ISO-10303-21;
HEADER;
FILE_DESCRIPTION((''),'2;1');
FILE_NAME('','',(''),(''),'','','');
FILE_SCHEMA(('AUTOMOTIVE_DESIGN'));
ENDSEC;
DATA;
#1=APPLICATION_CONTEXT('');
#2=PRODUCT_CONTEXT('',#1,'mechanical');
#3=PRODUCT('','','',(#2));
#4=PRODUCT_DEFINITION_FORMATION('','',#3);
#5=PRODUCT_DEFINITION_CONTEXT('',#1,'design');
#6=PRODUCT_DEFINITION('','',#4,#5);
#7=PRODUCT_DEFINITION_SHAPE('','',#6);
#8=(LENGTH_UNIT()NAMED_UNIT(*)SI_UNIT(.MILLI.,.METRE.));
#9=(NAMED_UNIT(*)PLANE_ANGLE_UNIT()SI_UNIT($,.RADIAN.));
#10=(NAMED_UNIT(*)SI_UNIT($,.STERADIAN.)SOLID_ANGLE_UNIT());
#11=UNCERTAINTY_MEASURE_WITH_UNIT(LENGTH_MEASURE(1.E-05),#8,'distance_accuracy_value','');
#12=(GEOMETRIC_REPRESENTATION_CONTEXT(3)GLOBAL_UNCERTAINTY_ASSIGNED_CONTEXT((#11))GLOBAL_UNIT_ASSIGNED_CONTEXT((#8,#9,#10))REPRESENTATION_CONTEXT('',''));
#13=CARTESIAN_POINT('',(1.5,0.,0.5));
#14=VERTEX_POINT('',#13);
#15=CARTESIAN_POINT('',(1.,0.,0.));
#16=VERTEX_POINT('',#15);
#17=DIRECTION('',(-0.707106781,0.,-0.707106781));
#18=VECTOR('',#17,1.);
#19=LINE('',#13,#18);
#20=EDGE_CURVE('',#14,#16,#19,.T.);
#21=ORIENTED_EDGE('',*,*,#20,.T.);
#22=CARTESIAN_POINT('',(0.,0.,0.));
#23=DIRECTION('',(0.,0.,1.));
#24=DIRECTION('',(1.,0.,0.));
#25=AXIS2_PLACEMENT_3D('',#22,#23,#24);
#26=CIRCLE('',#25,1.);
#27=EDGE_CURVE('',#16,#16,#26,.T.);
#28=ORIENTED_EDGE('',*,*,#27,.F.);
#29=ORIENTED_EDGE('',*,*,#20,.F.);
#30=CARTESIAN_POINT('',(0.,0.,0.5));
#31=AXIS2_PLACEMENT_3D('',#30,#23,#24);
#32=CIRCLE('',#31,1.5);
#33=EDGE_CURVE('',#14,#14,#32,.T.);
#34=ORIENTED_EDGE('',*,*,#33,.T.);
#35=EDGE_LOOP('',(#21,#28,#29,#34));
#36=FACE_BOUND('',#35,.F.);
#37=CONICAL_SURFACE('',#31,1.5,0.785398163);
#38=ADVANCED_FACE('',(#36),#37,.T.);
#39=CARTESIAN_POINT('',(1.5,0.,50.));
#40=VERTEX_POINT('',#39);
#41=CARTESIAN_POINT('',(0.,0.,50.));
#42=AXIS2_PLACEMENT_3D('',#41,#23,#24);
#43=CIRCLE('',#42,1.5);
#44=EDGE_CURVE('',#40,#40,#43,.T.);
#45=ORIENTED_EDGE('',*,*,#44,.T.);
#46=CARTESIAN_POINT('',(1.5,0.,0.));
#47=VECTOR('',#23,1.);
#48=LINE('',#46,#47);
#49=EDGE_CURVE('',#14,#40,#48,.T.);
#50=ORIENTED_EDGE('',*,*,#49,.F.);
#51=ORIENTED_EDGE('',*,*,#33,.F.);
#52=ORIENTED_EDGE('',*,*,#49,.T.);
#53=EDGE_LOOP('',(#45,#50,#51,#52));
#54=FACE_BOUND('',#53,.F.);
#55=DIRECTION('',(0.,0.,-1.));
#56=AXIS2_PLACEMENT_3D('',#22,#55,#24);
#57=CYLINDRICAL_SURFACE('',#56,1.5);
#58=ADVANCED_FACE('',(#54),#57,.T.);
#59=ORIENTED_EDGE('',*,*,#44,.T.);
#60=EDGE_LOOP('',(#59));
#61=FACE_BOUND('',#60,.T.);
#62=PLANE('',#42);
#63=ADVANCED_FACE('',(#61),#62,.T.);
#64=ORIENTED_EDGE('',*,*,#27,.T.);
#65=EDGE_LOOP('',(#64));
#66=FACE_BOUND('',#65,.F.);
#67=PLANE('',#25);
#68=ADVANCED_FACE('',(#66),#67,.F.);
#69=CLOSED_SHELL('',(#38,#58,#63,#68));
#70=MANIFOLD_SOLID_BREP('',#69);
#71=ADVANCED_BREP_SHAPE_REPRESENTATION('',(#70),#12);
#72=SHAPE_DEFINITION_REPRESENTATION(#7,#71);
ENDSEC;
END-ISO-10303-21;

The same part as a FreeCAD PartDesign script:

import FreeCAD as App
import Part
import Sketcher
from FreeCAD import Vector
Q = App.Units.Quantity


def edges_at(feature, points):
    """Names of the edges that pass closest to the given points."""
    edges = feature.Shape.Edges
    near = lambda p: min(range(len(edges)), key=lambda i: edges[i].distToShape(Part.Vertex(*p))[0])
    return sorted({f"Edge{near(p) + 1}" for p in points})

doc = App.newDocument("Part")
body = doc.addObject("PartDesign::Body", "Body")

sketch1 = body.newObject("Sketcher::SketchObject", "Sketch")
sketch1.AttachmentSupport = (doc.getObject("XY_Plane"), [""])
sketch1.MapMode = "FlatFace"
sketch1.addGeometry(Part.Circle(Vector(0, 0, 0), Vector(0, 0, 1), 1.5), False)
sketch1.addConstraint(Sketcher.Constraint("Coincident", 0, 3, -1, 1))
sketch1.addConstraint(Sketcher.Constraint("Diameter", 0, Q("3 mm")))
pad1 = body.newObject("PartDesign::Pad", "Pad")
pad1.Profile = sketch1
pad1.Length = 50
doc.recompute()

chamfer = body.newObject("PartDesign::Chamfer", "Chamfer")
chamfer.Base = (pad1, edges_at(pad1, [(-1.5, 0, 0)]))
chamfer.Size = 0.5

doc.recompute()
